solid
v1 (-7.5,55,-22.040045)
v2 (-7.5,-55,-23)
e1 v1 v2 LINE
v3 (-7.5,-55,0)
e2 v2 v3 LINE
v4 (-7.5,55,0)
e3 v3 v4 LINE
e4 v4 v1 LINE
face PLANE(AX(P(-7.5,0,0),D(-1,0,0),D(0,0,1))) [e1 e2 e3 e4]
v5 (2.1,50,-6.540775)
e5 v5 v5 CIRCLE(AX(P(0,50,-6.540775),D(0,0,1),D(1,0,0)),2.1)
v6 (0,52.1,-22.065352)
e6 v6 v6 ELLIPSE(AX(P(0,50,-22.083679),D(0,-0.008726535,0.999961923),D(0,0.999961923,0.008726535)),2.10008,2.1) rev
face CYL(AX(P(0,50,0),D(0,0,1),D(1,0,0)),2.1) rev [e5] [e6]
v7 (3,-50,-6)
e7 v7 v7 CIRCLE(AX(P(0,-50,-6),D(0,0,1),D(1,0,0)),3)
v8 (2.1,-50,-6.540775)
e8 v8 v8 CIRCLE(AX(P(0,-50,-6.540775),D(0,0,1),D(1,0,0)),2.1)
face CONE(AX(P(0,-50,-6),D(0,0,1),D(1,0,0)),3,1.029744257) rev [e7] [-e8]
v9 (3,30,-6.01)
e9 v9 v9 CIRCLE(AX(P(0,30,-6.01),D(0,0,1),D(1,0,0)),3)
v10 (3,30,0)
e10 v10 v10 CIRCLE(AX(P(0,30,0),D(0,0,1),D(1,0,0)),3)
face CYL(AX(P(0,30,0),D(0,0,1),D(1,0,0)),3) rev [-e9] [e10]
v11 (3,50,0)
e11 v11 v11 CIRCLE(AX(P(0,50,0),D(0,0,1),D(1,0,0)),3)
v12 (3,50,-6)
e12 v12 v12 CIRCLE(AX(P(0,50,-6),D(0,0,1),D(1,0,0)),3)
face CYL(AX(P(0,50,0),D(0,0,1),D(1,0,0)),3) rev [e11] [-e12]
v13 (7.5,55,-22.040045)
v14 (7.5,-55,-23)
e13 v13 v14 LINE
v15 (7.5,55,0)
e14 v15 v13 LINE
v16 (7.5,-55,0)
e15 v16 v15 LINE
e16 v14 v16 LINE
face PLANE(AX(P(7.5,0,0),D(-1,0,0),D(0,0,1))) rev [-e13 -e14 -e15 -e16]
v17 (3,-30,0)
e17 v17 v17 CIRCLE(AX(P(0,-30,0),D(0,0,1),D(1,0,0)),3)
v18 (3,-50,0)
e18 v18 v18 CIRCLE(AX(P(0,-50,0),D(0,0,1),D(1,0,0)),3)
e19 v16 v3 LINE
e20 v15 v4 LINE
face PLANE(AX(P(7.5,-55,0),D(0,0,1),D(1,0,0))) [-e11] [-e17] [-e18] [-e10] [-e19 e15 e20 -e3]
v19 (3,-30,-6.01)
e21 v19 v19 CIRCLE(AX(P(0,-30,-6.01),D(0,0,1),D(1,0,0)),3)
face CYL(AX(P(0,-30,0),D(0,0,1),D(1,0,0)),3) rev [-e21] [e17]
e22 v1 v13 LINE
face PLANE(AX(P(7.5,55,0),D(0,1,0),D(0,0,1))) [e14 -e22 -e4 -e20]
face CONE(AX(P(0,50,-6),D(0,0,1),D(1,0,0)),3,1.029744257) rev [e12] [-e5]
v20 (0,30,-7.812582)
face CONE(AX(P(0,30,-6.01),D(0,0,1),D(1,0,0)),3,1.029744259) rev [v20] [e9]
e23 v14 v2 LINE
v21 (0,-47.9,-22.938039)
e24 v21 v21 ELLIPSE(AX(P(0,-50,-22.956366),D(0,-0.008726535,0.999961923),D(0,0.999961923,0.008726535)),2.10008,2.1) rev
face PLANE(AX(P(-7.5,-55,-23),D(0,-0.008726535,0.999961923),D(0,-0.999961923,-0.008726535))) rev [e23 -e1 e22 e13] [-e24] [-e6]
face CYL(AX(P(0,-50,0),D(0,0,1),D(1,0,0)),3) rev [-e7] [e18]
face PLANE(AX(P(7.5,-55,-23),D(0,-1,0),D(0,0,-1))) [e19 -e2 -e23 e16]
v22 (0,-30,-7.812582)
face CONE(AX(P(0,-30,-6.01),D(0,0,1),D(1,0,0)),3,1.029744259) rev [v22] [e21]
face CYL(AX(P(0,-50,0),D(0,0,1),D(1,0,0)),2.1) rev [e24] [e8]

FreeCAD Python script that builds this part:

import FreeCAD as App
import Part
import Sketcher
from FreeCAD import Vector
Q = App.Units.Quantity


def add_polygon(sketch, points):
    """Adds a closed chain of lines whose ends are joined by coincident constraints."""
    first, n = sketch.GeometryCount, len(points)
    for a, b in zip(points, points[1:] + points[:1]):
        sketch.addGeometry(Part.LineSegment(App.Vector(*a, 0), App.Vector(*b, 0)), False)
    for i in range(n):
        sketch.addConstraint(Sketcher.Constraint("Coincident", first + i, 2, first + (i + 1) % n, 1))

doc = App.newDocument("Part")
params = doc.addObject("Spreadsheet::Sheet", "Params")
for row, (alias, value) in enumerate([
    ("sketch1_width", "110 mm"),
    ("sketch1_height", "23 mm"),
    ("pad1_length", "15 mm"),
    ("sketch2_diameter", "6 mm"),
    ("hole_diameter", "6 mm"),
    ("hole_depth", "6.01 mm"),
    ("sketch3_width", "3 mm"),
    ("sketch3_height", "23 mm"),
    ("sketch3_height2", "6 mm"),
    ("sketch3_width2", "2.1 mm"),
    ("groove_angle", "360 deg"),
    ("linearpattern_pitch", "100 mm"),
    ("sketch4_width", "110 mm"),
], start=1):
    params.set(f"A{row}", alias)
    params.set(f"B{row}", "=" + value)
    params.setAlias(f"B{row}", alias)

body = doc.addObject("PartDesign::Body", "Body")

sketch1 = body.newObject("Sketcher::SketchObject", "Sketch")
sketch1.AttachmentSupport = (doc.getObject("YZ_Plane"), [""])
sketch1.MapMode = "FlatFace"
sketch1.AttachmentOffset = App.Placement(Vector(0, 0, -7.5), App.Rotation())
add_polygon(sketch1, [(55, 0), (55, -23), (-55, -23), (-55, 0)])
sketch1.addConstraint([
    Sketcher.Constraint("Vertical", 0),
    Sketcher.Constraint("Horizontal", 1),
    Sketcher.Constraint("Vertical", 2),
    Sketcher.Constraint("Horizontal", 3),
    Sketcher.Constraint("Symmetric", 2, 2, 3, 2, -1, 1),
    Sketcher.Constraint("DistanceX", 1, 2, 1, 1, Q("110 mm")),
    Sketcher.Constraint("DistanceY", 0, 2, 0, 1, Q("23 mm")),
])
sketch1.setExpression("Constraints[9]", "Params.sketch1_width")
sketch1.setExpression("Constraints[10]", "Params.sketch1_height")
pad1 = body.newObject("PartDesign::Pad", "Pad")
pad1.Profile = sketch1
pad1.setExpression("Length", "Params.pad1_length")

sketch2 = body.newObject("Sketcher::SketchObject", "Sketch001")
sketch2.AttachmentSupport = (doc.getObject("XY_Plane"), [""])
sketch2.MapMode = "FlatFace"
sketch2.addGeometry([
    Part.Circle(Vector(0, 30, 0), Vector(0, 0, 1), 3),
    Part.Circle(Vector(0, -30, 0), Vector(0, 0, 1), 3),
], False)
sketch2.addConstraint([
    Sketcher.Constraint("Equal", 0, 1),
    Sketcher.Constraint("Symmetric", 0, 3, 1, 3, -1, 1),
    Sketcher.Constraint("PointOnObject", 0, 3, -2),
    Sketcher.Constraint("Diameter", 0, Q("6 mm")),
    Sketcher.Constraint("DistanceY", -1, 1, 0, 3, Q("30 mm")),
])
sketch2.setExpression("Constraints[3]", "Params.sketch2_diameter")
doc.recompute()
hole = body.newObject("PartDesign::Hole", "Hole")
hole.Profile = sketch2
hole.ThreadType = "None"
hole.setExpression("Diameter", "Params.hole_diameter")
hole.DepthType = "Dimension"
hole.setExpression("Depth", "Params.hole_depth")
hole.DrillPoint = "Angled"
hole.DrillPointAngle = 118

sketch3 = body.newObject("Sketcher::SketchObject", "Sketch002")
sketch3.AttachmentSupport = (doc.getObject("YZ_Plane"), [""])
sketch3.MapMode = "FlatFace"
add_polygon(sketch3, [(50, -23), (50, 0), (47, 0), (47, -6), (47.9, -6.540775), (47.9, -23)])
sketch3.addGeometry(Part.LineSegment(Vector(50, 0, 0), Vector(50, -23, 0)), True)
sketch3.addConstraint([
    Sketcher.Constraint("Vertical", 0),
    Sketcher.Constraint("Horizontal", 1),
    Sketcher.Constraint("Vertical", 2),
    Sketcher.Constraint("Vertical", 4),
    Sketcher.Constraint("Horizontal", 5),
    Sketcher.Constraint("Vertical", 6),
    Sketcher.Constraint("Coincident", 6, 1, 0, 2),
    Sketcher.Constraint("PointOnObject", 0, 2, -1),
    Sketcher.Constraint("Horizontal", 4, 2, 6, 2),
    Sketcher.Constraint("DistanceX", 1, 2, 1, 1, Q("3 mm")),
    Sketcher.Constraint("DistanceY", 0, 1, 0, 2, Q("23 mm")),
    Sketcher.Constraint("DistanceY", 2, 2, 2, 1, Q("6 mm")),
    Sketcher.Constraint("Angle", 3, Q("-31 deg")),
    Sketcher.Constraint("DistanceX", 5, 1, 5, 2, Q("2.1 mm")),
    Sketcher.Constraint("DistanceX", -1, 1, 0, 2, Q("50 mm")),
])
sketch3.setExpression("Constraints[15]", "Params.sketch3_width")
sketch3.setExpression("Constraints[16]", "Params.sketch3_height")
sketch3.setExpression("Constraints[17]", "Params.sketch3_height2")
sketch3.setExpression("Constraints[19]", "Params.sketch3_width2")
groove = body.newObject("PartDesign::Groove", "Groove")
groove.Profile = sketch3
groove.ReferenceAxis = (sketch3, ["Axis0"])
groove.setExpression("Angle", "Params.groove_angle")
doc.recompute()

linearpattern = body.newObject("PartDesign::LinearPattern", "LinearPattern")
linearpattern.Originals = [groove]
linearpattern.Direction = (doc.getObject("Y_Axis"), [""])
linearpattern.Mode = "offset"
linearpattern.setExpression("Offset", "Params.linearpattern_pitch")
linearpattern.Occurrences = 2
linearpattern.Reversed = True
body.Tip = linearpattern

sketch4 = body.newObject("Sketcher::SketchObject", "Sketch003")
sketch4.AttachmentSupport = (doc.getObject("YZ_Plane"), [""])
sketch4.MapMode = "FlatFace"
sketch4.AttachmentOffset = App.Placement(Vector(0, 0, 7.5), App.Rotation())
add_polygon(sketch4, [(55, -22.040045), (-55, -23), (55, -23)])
sketch4.addConstraint([
    Sketcher.Constraint("Horizontal", 1),
    Sketcher.Constraint("Vertical", 2),
    Sketcher.Constraint("DistanceX", 1, 1, 1, 2, Q("110 mm")),
    Sketcher.Constraint("DistanceX", 0, 2, -1, 1, Q("55 mm")),
    Sketcher.Constraint("DistanceY", 0, 2, -1, 1, Q("23 mm")),
    Sketcher.Constraint("Angle", 0, Q("-179.5 deg")),
])
sketch4.setExpression("Constraints[5]", "Params.sketch4_width")
pocket1 = body.newObject("PartDesign::Pocket", "Pocket")
pocket1.Profile = sketch4
pocket1.Type = "ThroughAll"

doc.recompute()
